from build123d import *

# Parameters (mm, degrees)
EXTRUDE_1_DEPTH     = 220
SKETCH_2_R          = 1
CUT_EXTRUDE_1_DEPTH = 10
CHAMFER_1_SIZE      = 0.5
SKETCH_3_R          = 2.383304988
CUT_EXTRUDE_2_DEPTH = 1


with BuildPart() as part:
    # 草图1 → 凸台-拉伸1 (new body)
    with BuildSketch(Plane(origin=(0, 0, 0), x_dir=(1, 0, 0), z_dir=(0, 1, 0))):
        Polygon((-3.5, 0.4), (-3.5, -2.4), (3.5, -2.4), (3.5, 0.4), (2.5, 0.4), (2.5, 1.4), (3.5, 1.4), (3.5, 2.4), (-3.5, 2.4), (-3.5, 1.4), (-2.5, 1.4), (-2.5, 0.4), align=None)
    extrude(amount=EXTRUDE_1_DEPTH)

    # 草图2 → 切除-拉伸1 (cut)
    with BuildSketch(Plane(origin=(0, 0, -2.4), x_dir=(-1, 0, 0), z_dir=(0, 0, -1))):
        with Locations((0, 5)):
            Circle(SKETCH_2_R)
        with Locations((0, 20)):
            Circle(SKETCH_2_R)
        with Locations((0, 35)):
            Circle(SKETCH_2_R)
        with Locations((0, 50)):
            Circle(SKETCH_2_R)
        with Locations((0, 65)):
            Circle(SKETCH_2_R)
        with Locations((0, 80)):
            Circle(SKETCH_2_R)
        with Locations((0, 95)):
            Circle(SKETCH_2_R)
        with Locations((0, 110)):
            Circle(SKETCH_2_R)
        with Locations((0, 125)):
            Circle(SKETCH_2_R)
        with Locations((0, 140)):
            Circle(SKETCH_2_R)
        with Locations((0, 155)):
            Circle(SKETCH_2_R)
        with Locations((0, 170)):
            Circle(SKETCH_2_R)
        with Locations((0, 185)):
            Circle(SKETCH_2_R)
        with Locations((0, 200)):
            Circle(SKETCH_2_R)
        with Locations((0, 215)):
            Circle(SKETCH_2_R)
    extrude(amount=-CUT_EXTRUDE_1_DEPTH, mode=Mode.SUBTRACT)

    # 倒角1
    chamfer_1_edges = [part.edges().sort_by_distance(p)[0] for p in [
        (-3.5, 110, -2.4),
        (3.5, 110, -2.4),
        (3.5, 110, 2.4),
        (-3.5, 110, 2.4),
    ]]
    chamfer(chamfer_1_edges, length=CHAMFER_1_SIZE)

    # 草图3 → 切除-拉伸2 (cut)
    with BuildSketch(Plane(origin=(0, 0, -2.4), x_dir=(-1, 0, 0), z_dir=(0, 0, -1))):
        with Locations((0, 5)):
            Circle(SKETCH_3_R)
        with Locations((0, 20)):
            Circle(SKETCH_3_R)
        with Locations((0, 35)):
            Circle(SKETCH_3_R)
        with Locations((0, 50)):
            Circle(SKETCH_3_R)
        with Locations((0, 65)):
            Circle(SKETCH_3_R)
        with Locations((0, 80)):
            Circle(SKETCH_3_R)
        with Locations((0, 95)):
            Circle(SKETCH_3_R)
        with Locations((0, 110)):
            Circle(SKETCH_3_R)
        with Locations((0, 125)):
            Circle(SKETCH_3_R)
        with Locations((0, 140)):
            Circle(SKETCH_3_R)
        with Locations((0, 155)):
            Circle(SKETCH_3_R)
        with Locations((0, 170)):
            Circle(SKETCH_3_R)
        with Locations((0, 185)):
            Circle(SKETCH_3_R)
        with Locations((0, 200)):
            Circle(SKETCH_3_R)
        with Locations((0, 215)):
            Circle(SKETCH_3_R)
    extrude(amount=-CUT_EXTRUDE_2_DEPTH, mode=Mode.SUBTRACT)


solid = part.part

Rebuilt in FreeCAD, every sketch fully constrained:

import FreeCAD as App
import Part
import Sketcher
from FreeCAD import Vector
Q = App.Units.Quantity


def edges_at(feature, points):
    """Names of the edges that pass closest to the given points."""
    edges = feature.Shape.Edges
    near = lambda p: min(range(len(edges)), key=lambda i: edges[i].distToShape(Part.Vertex(*p))[0])
    return sorted({f"Edge{near(p) + 1}" for p in points})

doc = App.newDocument("Part")
body = doc.addObject("PartDesign::Body", "Body")

# Sketch on XZ plane
sketch1 = doc.addObject("Sketcher::SketchObject", "Sketch")
body.addObject(sketch1)
sketch1.AttachmentSupport = (doc.XZ_Plane, [""])
sketch1.MapMode = "FlatFace"
sketch1.addGeometry([
    Part.LineSegment(Vector(-3.5, -0.4, 0), Vector(-3.5, 2.4, 0)),  # 0
    Part.LineSegment(Vector(-3.5, 2.4, 0), Vector(3.5, 2.4, 0)),  # 1
    Part.LineSegment(Vector(3.5, 2.4, 0), Vector(3.5, -0.4, 0)),  # 2
    Part.LineSegment(Vector(3.5, -0.4, 0), Vector(2.5, -0.4, 0)),  # 3
    Part.LineSegment(Vector(2.5, -0.4, 0), Vector(2.5, -1.4, 0)),  # 4
    Part.LineSegment(Vector(2.5, -1.4, 0), Vector(3.5, -1.4, 0)),  # 5
    Part.LineSegment(Vector(3.5, -1.4, 0), Vector(3.5, -2.4, 0)),  # 6
    Part.LineSegment(Vector(3.5, -2.4, 0), Vector(-3.5, -2.4, 0)),  # 7
    Part.LineSegment(Vector(-3.5, -2.4, 0), Vector(-3.5, -1.4, 0)),  # 8
    Part.LineSegment(Vector(-3.5, -1.4, 0), Vector(-2.5, -1.4, 0)),  # 9
    Part.LineSegment(Vector(-2.5, -1.4, 0), Vector(-2.5, -0.4, 0)),  # 10
    Part.LineSegment(Vector(-2.5, -0.4, 0), Vector(-3.5, -0.4, 0)),  # 11
], False)
sketch1.addConstraint([
    Sketcher.Constraint("Coincident", 0, 2, 1, 1),
    Sketcher.Constraint("Coincident", 1, 2, 2, 1),
    Sketcher.Constraint("Coincident", 2, 2, 3, 1),
    Sketcher.Constraint("Coincident", 3, 2, 4, 1),
    Sketcher.Constraint("Coincident", 4, 2, 5, 1),
    Sketcher.Constraint("Coincident", 5, 2, 6, 1),
    Sketcher.Constraint("Coincident", 6, 2, 7, 1),
    Sketcher.Constraint("Coincident", 7, 2, 8, 1),
    Sketcher.Constraint("Coincident", 8, 2, 9, 1),
    Sketcher.Constraint("Coincident", 9, 2, 10, 1),
    Sketcher.Constraint("Coincident", 10, 2, 11, 1),
    Sketcher.Constraint("Coincident", 11, 2, 0, 1),
    Sketcher.Constraint("Vertical", 0),
    Sketcher.Constraint("Horizontal", 1),
    Sketcher.Constraint("Vertical", 2),
    Sketcher.Constraint("Horizontal", 3),
    Sketcher.Constraint("Vertical", 4),
    Sketcher.Constraint("Horizontal", 5),
    Sketcher.Constraint("Vertical", 6),
    Sketcher.Constraint("Horizontal", 7),
    Sketcher.Constraint("Vertical", 8),
    Sketcher.Constraint("Horizontal", 9),
    Sketcher.Constraint("Vertical", 10),
    Sketcher.Constraint("Horizontal", 11),
    Sketcher.Constraint("Symmetric", 0, 2, 6, 2, -1, 1),
    Sketcher.Constraint("Symmetric", 5, 2, 8, 2, -2),
    Sketcher.Constraint("Symmetric", 3, 2, 10, 2, -2),
    Sketcher.Constraint("Vertical", 2, 2, 5, 2),
    Sketcher.Constraint("Equal", 11, 4),
    Sketcher.Constraint("Equal", 4, 6),
    Sketcher.Constraint("DistanceX", 1, 1, 1, 2, Q("7 mm")),
    Sketcher.Constraint("DistanceX", 3, 2, 3, 1, Q("1 mm")),
    Sketcher.Constraint("DistanceY", 0, 1, 0, 2, Q("2.8 mm")),
])
pad1 = doc.addObject("PartDesign::Pad", "Pad")
body.addObject(pad1)
pad1.Profile = sketch1
pad1.Length = 220
pad1.Reversed = True

# Sketch on XY plane
sketch2 = doc.addObject("Sketcher::SketchObject", "Sketch001")
body.addObject(sketch2)
sketch2.AttachmentSupport = (doc.XY_Plane, [""])
sketch2.MapMode = "FlatFace"
sketch2.AttachmentOffset = App.Placement(Vector(0, 0, -2.4), App.Rotation())
sketch2.addGeometry([
    Part.Circle(Vector(0, 5, 0), Vector(0, 0, 1), 1),  # 0
    Part.Circle(Vector(0, 20, 0), Vector(0, 0, 1), 1),  # 1
    Part.Circle(Vector(0, 35, 0), Vector(0, 0, 1), 1),  # 2
    Part.Circle(Vector(0, 50, 0), Vector(0, 0, 1), 1),  # 3
    Part.Circle(Vector(0, 65, 0), Vector(0, 0, 1), 1),  # 4
    Part.Circle(Vector(0, 80, 0), Vector(0, 0, 1), 1),  # 5
    Part.Circle(Vector(0, 95, 0), Vector(0, 0, 1), 1),  # 6
    Part.Circle(Vector(0, 110, 0), Vector(0, 0, 1), 1),  # 7
    Part.Circle(Vector(0, 125, 0), Vector(0, 0, 1), 1),  # 8
    Part.Circle(Vector(0, 140, 0), Vector(0, 0, 1), 1),  # 9
    Part.Circle(Vector(0, 155, 0), Vector(0, 0, 1), 1),  # 10
    Part.Circle(Vector(0, 170, 0), Vector(0, 0, 1), 1),  # 11
    Part.Circle(Vector(0, 185, 0), Vector(0, 0, 1), 1),  # 12
    Part.Circle(Vector(0, 200, 0), Vector(0, 0, 1), 1),  # 13
    Part.Circle(Vector(0, 215, 0), Vector(0, 0, 1), 1),  # 14
], False)
sketch2.addConstraint([
    Sketcher.Constraint("Equal", 0, 1),
    Sketcher.Constraint("Equal", 1, 2),
    Sketcher.Constraint("Equal", 2, 3),
    Sketcher.Constraint("Equal", 3, 4),
    Sketcher.Constraint("Equal", 4, 5),
    Sketcher.Constraint("Equal", 5, 6),
    Sketcher.Constraint("Equal", 6, 7),
    Sketcher.Constraint("Equal", 7, 8),
    Sketcher.Constraint("Equal", 8, 9),
    Sketcher.Constraint("Equal", 9, 10),
    Sketcher.Constraint("Equal", 10, 11),
    Sketcher.Constraint("Equal", 11, 12),
    Sketcher.Constraint("Equal", 12, 13),
    Sketcher.Constraint("Equal", 13, 14),
    Sketcher.Constraint("PointOnObject", 0, 3, -2),
    Sketcher.Constraint("PointOnObject", 1, 3, -2),
    Sketcher.Constraint("PointOnObject", 2, 3, -2),
    Sketcher.Constraint("PointOnObject", 3, 3, -2),
    Sketcher.Constraint("PointOnObject", 4, 3, -2),
    Sketcher.Constraint("PointOnObject", 5, 3, -2),
    Sketcher.Constraint("PointOnObject", 6, 3, -2),
    Sketcher.Constraint("PointOnObject", 7, 3, -2),
    Sketcher.Constraint("PointOnObject", 8, 3, -2),
    Sketcher.Constraint("PointOnObject", 9, 3, -2),
    Sketcher.Constraint("PointOnObject", 10, 3, -2),
    Sketcher.Constraint("PointOnObject", 11, 3, -2),
    Sketcher.Constraint("PointOnObject", 12, 3, -2),
    Sketcher.Constraint("PointOnObject", 13, 3, -2),
    Sketcher.Constraint("PointOnObject", 14, 3, -2),
    Sketcher.Constraint("Diameter", 0, Q("2 mm")),
    Sketcher.Constraint("DistanceY", -1, 1, 0, 3, Q("5 mm")),
    Sketcher.Constraint("DistanceY", -1, 1, 1, 3, Q("20 mm")),
    Sketcher.Constraint("DistanceY", -1, 1, 2, 3, Q("35 mm")),
    Sketcher.Constraint("DistanceY", -1, 1, 3, 3, Q("50 mm")),
    Sketcher.Constraint("DistanceY", -1, 1, 4, 3, Q("65 mm")),
    Sketcher.Constraint("DistanceY", -1, 1, 5, 3, Q("80 mm")),
    Sketcher.Constraint("DistanceY", -1, 1, 6, 3, Q("95 mm")),
    Sketcher.Constraint("DistanceY", -1, 1, 7, 3, Q("110 mm")),
    Sketcher.Constraint("DistanceY", -1, 1, 8, 3, Q("125 mm")),
    Sketcher.Constraint("DistanceY", -1, 1, 9, 3, Q("140 mm")),
    Sketcher.Constraint("DistanceY", -1, 1, 10, 3, Q("155 mm")),
    Sketcher.Constraint("DistanceY", -1, 1, 11, 3, Q("170 mm")),
    Sketcher.Constraint("DistanceY", -1, 1, 12, 3, Q("185 mm")),
    Sketcher.Constraint("DistanceY", -1, 1, 13, 3, Q("200 mm")),
    Sketcher.Constraint("DistanceY", -1, 1, 14, 3, Q("215 mm")),
])
pocket1 = doc.addObject("PartDesign::Pocket", "Pocket")
body.addObject(pocket1)
pocket1.Profile = sketch2
pocket1.Length = 10
pocket1.Reversed = True
doc.recompute()

chamfer = doc.addObject("PartDesign::Chamfer", "Chamfer")
body.addObject(chamfer)
chamfer.Base = (pocket1, edges_at(pocket1, [
    (-3.5, 110, -2.4),
    (3.5, 110, -2.4),
    (3.5, 110, 2.4),
    (-3.5, 110, 2.4),
]))
chamfer.Size = 0.5

# Sketch on XY plane
sketch3 = doc.addObject("Sketcher::SketchObject", "Sketch002")
body.addObject(sketch3)
sketch3.AttachmentSupport = (doc.XY_Plane, [""])
sketch3.MapMode = "FlatFace"
sketch3.AttachmentOffset = App.Placement(Vector(0, 0, -2.4), App.Rotation())
sketch3.addGeometry([
    Part.Circle(Vector(0, 5, 0), Vector(0, 0, 1), 2.383305),  # 0
    Part.Circle(Vector(0, 20, 0), Vector(0, 0, 1), 2.383305),  # 1
    Part.Circle(Vector(0, 35, 0), Vector(0, 0, 1), 2.383305),  # 2
    Part.Circle(Vector(0, 50, 0), Vector(0, 0, 1), 2.383305),  # 3
    Part.Circle(Vector(0, 65, 0), Vector(0, 0, 1), 2.383305),  # 4
    Part.Circle(Vector(0, 80, 0), Vector(0, 0, 1), 2.383305),  # 5
    Part.Circle(Vector(0, 95, 0), Vector(0, 0, 1), 2.383305),  # 6
    Part.Circle(Vector(0, 110, 0), Vector(0, 0, 1), 2.383305),  # 7
    Part.Circle(Vector(0, 125, 0), Vector(0, 0, 1), 2.383305),  # 8
    Part.Circle(Vector(0, 140, 0), Vector(0, 0, 1), 2.383305),  # 9
    Part.Circle(Vector(0, 155, 0), Vector(0, 0, 1), 2.383305),  # 10
    Part.Circle(Vector(0, 170, 0), Vector(0, 0, 1), 2.383305),  # 11
    Part.Circle(Vector(0, 185, 0), Vector(0, 0, 1), 2.383305),  # 12
    Part.Circle(Vector(0, 200, 0), Vector(0, 0, 1), 2.383305),  # 13
    Part.Circle(Vector(0, 215, 0), Vector(0, 0, 1), 2.383305),  # 14
], False)
sketch3.addConstraint([
    Sketcher.Constraint("Equal", 0, 1),
    Sketcher.Constraint("Equal", 1, 2),
    Sketcher.Constraint("Equal", 2, 3),
    Sketcher.Constraint("Equal", 3, 4),
    Sketcher.Constraint("Equal", 4, 5),
    Sketcher.Constraint("Equal", 5, 6),
    Sketcher.Constraint("Equal", 6, 7),
    Sketcher.Constraint("Equal", 7, 8),
    Sketcher.Constraint("Equal", 8, 9),
    Sketcher.Constraint("Equal", 9, 10),
    Sketcher.Constraint("Equal", 10, 11),
    Sketcher.Constraint("Equal", 11, 12),
    Sketcher.Constraint("Equal", 12, 13),
    Sketcher.Constraint("Equal", 13, 14),
    Sketcher.Constraint("PointOnObject", 0, 3, -2),
    Sketcher.Constraint("PointOnObject", 1, 3, -2),
    Sketcher.Constraint("PointOnObject", 2, 3, -2),
    Sketcher.Constraint("PointOnObject", 3, 3, -2),
    Sketcher.Constraint("PointOnObject", 4, 3, -2),
    Sketcher.Constraint("PointOnObject", 5, 3, -2),
    Sketcher.Constraint("PointOnObject", 6, 3, -2),
    Sketcher.Constraint("PointOnObject", 7, 3, -2),
    Sketcher.Constraint("PointOnObject", 8, 3, -2),
    Sketcher.Constraint("PointOnObject", 9, 3, -2),
    Sketcher.Constraint("PointOnObject", 10, 3, -2),
    Sketcher.Constraint("PointOnObject", 11, 3, -2),
    Sketcher.Constraint("PointOnObject", 12, 3, -2),
    Sketcher.Constraint("PointOnObject", 13, 3, -2),
    Sketcher.Constraint("PointOnObject", 14, 3, -2),
    Sketcher.Constraint("DistanceY", -1, 1, 0, 3, Q("5 mm")),
    Sketcher.Constraint("DistanceY", -1, 1, 1, 3, Q("20 mm")),
    Sketcher.Constraint("DistanceY", -1, 1, 2, 3, Q("35 mm")),
    Sketcher.Constraint("DistanceY", -1, 1, 3, 3, Q("50 mm")),
    Sketcher.Constraint("DistanceY", -1, 1, 4, 3, Q("65 mm")),
    Sketcher.Constraint("DistanceY", -1, 1, 5, 3, Q("80 mm")),
    Sketcher.Constraint("DistanceY", -1, 1, 6, 3, Q("95 mm")),
    Sketcher.Constraint("DistanceY", -1, 1, 7, 3, Q("110 mm")),
    Sketcher.Constraint("DistanceY", -1, 1, 8, 3, Q("125 mm")),
    Sketcher.Constraint("DistanceY", -1, 1, 9, 3, Q("140 mm")),
    Sketcher.Constraint("DistanceY", -1, 1, 10, 3, Q("155 mm")),
    Sketcher.Constraint("DistanceY", -1, 1, 11, 3, Q("170 mm")),
    Sketcher.Constraint("DistanceY", -1, 1, 12, 3, Q("185 mm")),
    Sketcher.Constraint("DistanceY", -1, 1, 13, 3, Q("200 mm")),
    Sketcher.Constraint("DistanceY", -1, 1, 14, 3, Q("215 mm")),
    Sketcher.Constraint("Diameter", 0, Q("4.76661 mm")),
])
pocket2 = doc.addObject("PartDesign::Pocket", "Pocket001")
body.addObject(pocket2)
pocket2.Profile = sketch3
pocket2.Length = 1
pocket2.Reversed = True

doc.recompute()
